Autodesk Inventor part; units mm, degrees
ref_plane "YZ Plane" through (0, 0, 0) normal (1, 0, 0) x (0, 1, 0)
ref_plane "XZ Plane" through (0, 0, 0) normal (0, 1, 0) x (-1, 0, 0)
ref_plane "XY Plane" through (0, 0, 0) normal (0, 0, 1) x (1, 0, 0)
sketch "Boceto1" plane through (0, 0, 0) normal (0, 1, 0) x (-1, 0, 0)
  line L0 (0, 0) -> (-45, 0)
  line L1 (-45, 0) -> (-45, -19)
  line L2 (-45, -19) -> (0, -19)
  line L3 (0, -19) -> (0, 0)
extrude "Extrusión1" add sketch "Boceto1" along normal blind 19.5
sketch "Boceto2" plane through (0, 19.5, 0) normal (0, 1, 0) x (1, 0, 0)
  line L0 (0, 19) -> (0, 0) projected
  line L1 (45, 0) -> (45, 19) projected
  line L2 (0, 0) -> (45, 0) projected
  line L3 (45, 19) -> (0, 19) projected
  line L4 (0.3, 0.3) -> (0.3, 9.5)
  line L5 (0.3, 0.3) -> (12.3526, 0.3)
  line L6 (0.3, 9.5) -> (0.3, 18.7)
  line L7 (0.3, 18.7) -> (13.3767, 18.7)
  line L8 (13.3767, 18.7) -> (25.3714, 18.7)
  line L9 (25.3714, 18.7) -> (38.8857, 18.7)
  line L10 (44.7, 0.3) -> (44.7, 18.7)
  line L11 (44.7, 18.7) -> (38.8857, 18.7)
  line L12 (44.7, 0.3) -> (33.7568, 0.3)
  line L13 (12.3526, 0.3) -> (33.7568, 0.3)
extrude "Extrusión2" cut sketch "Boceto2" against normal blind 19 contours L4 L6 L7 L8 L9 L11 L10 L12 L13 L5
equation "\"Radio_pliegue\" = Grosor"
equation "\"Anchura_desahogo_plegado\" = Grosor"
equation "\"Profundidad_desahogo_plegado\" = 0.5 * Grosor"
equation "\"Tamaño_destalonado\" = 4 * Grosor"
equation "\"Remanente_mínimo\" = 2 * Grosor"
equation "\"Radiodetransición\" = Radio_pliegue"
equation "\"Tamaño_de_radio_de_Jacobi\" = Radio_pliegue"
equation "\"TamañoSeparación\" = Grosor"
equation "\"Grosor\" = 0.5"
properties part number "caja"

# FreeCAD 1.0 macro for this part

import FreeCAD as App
import Part
import Sketcher

V = App.Vector

doc = App.newDocument("Part")
body = doc.addObject("PartDesign::Body", "Body")

sketch1 = body.newObject("Sketcher::SketchObject", "Sketch")
sketch1.AttachmentSupport = (doc.getObject("XZ_Plane"), [""])
sketch1.MapMode = "FlatFace"
sketch1.addGeometry([
    Part.LineSegment(V(0, -19, 0), V(0, 0, 0)),
    Part.LineSegment(V(0, 0, 0), V(45, 0, 0)),
    Part.LineSegment(V(45, 0, 0), V(45, -19, 0)),
    Part.LineSegment(V(45, -19, 0), V(0, -19, 0)),
], False)
sketch1.addConstraint([
    Sketcher.Constraint("Coincident", 0, 2, 1, 1),
    Sketcher.Constraint("Coincident", 1, 2, 2, 1),
    Sketcher.Constraint("Coincident", 2, 2, 3, 1),
    Sketcher.Constraint("Coincident", 3, 2, 0, 1),
    Sketcher.Constraint("Vertical", 0),
    Sketcher.Constraint("Horizontal", 1),
    Sketcher.Constraint("Vertical", 2),
    Sketcher.Constraint("Horizontal", 3),
    Sketcher.Constraint("Coincident", 0, 2, -1, 1),
    Sketcher.Constraint("DistanceX", 1, 1, 1, 2, 45.0),
    Sketcher.Constraint("DistanceY", 0, 1, 0, 2, 19.0),
])
pad1 = body.newObject("PartDesign::Pad", "Pad")
pad1.Profile = sketch1
pad1.Length = 19.5
pad1.Reversed = True

sketch2 = body.newObject("Sketcher::SketchObject", "Sketch001")
sketch2.AttachmentSupport = (doc.getObject("XZ_Plane"), [""])
sketch2.MapMode = "FlatFace"
sketch2.AttachmentOffset = App.Placement(V(0, 0, -19.5), App.Rotation())
sketch2.addGeometry([
    Part.LineSegment(V(0, -19, 0), V(0, 0, 0)),
    Part.LineSegment(V(0, 0, 0), V(45, 0, 0)),
    Part.LineSegment(V(45, 0, 0), V(45, -19, 0)),
    Part.LineSegment(V(45, -19, 0), V(0, -19, 0)),
], False)
sketch2.addConstraint([
    Sketcher.Constraint("Coincident", 0, 2, 1, 1),
    Sketcher.Constraint("Coincident", 1, 2, 2, 1),
    Sketcher.Constraint("Coincident", 2, 2, 3, 1),
    Sketcher.Constraint("Coincident", 3, 2, 0, 1),
    Sketcher.Constraint("Vertical", 0),
    Sketcher.Constraint("Horizontal", 1),
    Sketcher.Constraint("Vertical", 2),
    Sketcher.Constraint("Horizontal", 3),
    Sketcher.Constraint("DistanceX", 1, 1, 1, 2, 44.4),
    Sketcher.Constraint("DistanceY", 0, 1, 0, 2, 18.4),
    Sketcher.Constraint("DistanceX", -1, 1, 0, 2, 0.3),
    Sketcher.Constraint("DistanceY", 0, 2, -1, 1, 0.3),
])
pocket1 = body.newObject("PartDesign::Pocket", "Pocket")
pocket1.Profile = sketch2
pocket1.Length = 19
pocket1.Reversed = True

doc.recompute()
